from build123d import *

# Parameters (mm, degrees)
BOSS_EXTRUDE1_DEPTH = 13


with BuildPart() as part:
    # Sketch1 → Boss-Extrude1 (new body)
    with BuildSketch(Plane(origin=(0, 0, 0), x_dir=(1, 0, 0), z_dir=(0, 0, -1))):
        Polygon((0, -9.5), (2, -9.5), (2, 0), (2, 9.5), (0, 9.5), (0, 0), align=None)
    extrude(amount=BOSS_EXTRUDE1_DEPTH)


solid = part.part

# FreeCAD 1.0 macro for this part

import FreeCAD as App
import Part
import Sketcher
from FreeCAD import Vector
Q = App.Units.Quantity

doc = App.newDocument("Part")
params = doc.addObject("Spreadsheet::Sheet", "Params")
for row, (alias, value) in enumerate([
    ("sketch1_width", "2 mm"),
    ("sketch1_height", "19 mm"),
    ("pad1_length", "13 mm"),
], start=1):
    params.set(f"A{row}", alias)
    params.set(f"B{row}", "=" + value)
    params.setAlias(f"B{row}", alias)

body = doc.addObject("PartDesign::Body", "Body")

# Sketch on XY plane
sketch1 = doc.addObject("Sketcher::SketchObject", "Sketch")
body.addObject(sketch1)
sketch1.AttachmentSupport = (doc.XY_Plane, [""])
sketch1.MapMode = "FlatFace"
sketch1.addGeometry([
    Part.LineSegment(Vector(0, 9.5, 0), Vector(2, 9.5, 0)),
    Part.LineSegment(Vector(2, 9.5, 0), Vector(2, -9.5, 0)),
    Part.LineSegment(Vector(2, -9.5, 0), Vector(0, -9.5, 0)),
    Part.LineSegment(Vector(0, -9.5, 0), Vector(0, 9.5, 0)),
], False)
sketch1.addConstraint([
    Sketcher.Constraint("Coincident", 0, 2, 1, 1),
    Sketcher.Constraint("Coincident", 1, 2, 2, 1),
    Sketcher.Constraint("Coincident", 2, 2, 3, 1),
    Sketcher.Constraint("Coincident", 3, 2, 0, 1),
    Sketcher.Constraint("Horizontal", 0),
    Sketcher.Constraint("Vertical", 1),
    Sketcher.Constraint("Horizontal", 2),
    Sketcher.Constraint("Vertical", 3),
    Sketcher.Constraint("Symmetric", 2, 2, 3, 2, -1, 1),
    Sketcher.Constraint("DistanceX", 0, 1, 0, 2, Q("2 mm")),
    Sketcher.Constraint("DistanceY", 1, 2, 1, 1, Q("19 mm")),
])
sketch1.setExpression("Constraints[9]", "Params.sketch1_width")
sketch1.setExpression("Constraints[10]", "Params.sketch1_height")
pad1 = doc.addObject("PartDesign::Pad", "Pad")
body.addObject(pad1)
pad1.Profile = sketch1
pad1.setExpression("Length", "Params.pad1_length")
pad1.Reversed = True

doc.recompute()
